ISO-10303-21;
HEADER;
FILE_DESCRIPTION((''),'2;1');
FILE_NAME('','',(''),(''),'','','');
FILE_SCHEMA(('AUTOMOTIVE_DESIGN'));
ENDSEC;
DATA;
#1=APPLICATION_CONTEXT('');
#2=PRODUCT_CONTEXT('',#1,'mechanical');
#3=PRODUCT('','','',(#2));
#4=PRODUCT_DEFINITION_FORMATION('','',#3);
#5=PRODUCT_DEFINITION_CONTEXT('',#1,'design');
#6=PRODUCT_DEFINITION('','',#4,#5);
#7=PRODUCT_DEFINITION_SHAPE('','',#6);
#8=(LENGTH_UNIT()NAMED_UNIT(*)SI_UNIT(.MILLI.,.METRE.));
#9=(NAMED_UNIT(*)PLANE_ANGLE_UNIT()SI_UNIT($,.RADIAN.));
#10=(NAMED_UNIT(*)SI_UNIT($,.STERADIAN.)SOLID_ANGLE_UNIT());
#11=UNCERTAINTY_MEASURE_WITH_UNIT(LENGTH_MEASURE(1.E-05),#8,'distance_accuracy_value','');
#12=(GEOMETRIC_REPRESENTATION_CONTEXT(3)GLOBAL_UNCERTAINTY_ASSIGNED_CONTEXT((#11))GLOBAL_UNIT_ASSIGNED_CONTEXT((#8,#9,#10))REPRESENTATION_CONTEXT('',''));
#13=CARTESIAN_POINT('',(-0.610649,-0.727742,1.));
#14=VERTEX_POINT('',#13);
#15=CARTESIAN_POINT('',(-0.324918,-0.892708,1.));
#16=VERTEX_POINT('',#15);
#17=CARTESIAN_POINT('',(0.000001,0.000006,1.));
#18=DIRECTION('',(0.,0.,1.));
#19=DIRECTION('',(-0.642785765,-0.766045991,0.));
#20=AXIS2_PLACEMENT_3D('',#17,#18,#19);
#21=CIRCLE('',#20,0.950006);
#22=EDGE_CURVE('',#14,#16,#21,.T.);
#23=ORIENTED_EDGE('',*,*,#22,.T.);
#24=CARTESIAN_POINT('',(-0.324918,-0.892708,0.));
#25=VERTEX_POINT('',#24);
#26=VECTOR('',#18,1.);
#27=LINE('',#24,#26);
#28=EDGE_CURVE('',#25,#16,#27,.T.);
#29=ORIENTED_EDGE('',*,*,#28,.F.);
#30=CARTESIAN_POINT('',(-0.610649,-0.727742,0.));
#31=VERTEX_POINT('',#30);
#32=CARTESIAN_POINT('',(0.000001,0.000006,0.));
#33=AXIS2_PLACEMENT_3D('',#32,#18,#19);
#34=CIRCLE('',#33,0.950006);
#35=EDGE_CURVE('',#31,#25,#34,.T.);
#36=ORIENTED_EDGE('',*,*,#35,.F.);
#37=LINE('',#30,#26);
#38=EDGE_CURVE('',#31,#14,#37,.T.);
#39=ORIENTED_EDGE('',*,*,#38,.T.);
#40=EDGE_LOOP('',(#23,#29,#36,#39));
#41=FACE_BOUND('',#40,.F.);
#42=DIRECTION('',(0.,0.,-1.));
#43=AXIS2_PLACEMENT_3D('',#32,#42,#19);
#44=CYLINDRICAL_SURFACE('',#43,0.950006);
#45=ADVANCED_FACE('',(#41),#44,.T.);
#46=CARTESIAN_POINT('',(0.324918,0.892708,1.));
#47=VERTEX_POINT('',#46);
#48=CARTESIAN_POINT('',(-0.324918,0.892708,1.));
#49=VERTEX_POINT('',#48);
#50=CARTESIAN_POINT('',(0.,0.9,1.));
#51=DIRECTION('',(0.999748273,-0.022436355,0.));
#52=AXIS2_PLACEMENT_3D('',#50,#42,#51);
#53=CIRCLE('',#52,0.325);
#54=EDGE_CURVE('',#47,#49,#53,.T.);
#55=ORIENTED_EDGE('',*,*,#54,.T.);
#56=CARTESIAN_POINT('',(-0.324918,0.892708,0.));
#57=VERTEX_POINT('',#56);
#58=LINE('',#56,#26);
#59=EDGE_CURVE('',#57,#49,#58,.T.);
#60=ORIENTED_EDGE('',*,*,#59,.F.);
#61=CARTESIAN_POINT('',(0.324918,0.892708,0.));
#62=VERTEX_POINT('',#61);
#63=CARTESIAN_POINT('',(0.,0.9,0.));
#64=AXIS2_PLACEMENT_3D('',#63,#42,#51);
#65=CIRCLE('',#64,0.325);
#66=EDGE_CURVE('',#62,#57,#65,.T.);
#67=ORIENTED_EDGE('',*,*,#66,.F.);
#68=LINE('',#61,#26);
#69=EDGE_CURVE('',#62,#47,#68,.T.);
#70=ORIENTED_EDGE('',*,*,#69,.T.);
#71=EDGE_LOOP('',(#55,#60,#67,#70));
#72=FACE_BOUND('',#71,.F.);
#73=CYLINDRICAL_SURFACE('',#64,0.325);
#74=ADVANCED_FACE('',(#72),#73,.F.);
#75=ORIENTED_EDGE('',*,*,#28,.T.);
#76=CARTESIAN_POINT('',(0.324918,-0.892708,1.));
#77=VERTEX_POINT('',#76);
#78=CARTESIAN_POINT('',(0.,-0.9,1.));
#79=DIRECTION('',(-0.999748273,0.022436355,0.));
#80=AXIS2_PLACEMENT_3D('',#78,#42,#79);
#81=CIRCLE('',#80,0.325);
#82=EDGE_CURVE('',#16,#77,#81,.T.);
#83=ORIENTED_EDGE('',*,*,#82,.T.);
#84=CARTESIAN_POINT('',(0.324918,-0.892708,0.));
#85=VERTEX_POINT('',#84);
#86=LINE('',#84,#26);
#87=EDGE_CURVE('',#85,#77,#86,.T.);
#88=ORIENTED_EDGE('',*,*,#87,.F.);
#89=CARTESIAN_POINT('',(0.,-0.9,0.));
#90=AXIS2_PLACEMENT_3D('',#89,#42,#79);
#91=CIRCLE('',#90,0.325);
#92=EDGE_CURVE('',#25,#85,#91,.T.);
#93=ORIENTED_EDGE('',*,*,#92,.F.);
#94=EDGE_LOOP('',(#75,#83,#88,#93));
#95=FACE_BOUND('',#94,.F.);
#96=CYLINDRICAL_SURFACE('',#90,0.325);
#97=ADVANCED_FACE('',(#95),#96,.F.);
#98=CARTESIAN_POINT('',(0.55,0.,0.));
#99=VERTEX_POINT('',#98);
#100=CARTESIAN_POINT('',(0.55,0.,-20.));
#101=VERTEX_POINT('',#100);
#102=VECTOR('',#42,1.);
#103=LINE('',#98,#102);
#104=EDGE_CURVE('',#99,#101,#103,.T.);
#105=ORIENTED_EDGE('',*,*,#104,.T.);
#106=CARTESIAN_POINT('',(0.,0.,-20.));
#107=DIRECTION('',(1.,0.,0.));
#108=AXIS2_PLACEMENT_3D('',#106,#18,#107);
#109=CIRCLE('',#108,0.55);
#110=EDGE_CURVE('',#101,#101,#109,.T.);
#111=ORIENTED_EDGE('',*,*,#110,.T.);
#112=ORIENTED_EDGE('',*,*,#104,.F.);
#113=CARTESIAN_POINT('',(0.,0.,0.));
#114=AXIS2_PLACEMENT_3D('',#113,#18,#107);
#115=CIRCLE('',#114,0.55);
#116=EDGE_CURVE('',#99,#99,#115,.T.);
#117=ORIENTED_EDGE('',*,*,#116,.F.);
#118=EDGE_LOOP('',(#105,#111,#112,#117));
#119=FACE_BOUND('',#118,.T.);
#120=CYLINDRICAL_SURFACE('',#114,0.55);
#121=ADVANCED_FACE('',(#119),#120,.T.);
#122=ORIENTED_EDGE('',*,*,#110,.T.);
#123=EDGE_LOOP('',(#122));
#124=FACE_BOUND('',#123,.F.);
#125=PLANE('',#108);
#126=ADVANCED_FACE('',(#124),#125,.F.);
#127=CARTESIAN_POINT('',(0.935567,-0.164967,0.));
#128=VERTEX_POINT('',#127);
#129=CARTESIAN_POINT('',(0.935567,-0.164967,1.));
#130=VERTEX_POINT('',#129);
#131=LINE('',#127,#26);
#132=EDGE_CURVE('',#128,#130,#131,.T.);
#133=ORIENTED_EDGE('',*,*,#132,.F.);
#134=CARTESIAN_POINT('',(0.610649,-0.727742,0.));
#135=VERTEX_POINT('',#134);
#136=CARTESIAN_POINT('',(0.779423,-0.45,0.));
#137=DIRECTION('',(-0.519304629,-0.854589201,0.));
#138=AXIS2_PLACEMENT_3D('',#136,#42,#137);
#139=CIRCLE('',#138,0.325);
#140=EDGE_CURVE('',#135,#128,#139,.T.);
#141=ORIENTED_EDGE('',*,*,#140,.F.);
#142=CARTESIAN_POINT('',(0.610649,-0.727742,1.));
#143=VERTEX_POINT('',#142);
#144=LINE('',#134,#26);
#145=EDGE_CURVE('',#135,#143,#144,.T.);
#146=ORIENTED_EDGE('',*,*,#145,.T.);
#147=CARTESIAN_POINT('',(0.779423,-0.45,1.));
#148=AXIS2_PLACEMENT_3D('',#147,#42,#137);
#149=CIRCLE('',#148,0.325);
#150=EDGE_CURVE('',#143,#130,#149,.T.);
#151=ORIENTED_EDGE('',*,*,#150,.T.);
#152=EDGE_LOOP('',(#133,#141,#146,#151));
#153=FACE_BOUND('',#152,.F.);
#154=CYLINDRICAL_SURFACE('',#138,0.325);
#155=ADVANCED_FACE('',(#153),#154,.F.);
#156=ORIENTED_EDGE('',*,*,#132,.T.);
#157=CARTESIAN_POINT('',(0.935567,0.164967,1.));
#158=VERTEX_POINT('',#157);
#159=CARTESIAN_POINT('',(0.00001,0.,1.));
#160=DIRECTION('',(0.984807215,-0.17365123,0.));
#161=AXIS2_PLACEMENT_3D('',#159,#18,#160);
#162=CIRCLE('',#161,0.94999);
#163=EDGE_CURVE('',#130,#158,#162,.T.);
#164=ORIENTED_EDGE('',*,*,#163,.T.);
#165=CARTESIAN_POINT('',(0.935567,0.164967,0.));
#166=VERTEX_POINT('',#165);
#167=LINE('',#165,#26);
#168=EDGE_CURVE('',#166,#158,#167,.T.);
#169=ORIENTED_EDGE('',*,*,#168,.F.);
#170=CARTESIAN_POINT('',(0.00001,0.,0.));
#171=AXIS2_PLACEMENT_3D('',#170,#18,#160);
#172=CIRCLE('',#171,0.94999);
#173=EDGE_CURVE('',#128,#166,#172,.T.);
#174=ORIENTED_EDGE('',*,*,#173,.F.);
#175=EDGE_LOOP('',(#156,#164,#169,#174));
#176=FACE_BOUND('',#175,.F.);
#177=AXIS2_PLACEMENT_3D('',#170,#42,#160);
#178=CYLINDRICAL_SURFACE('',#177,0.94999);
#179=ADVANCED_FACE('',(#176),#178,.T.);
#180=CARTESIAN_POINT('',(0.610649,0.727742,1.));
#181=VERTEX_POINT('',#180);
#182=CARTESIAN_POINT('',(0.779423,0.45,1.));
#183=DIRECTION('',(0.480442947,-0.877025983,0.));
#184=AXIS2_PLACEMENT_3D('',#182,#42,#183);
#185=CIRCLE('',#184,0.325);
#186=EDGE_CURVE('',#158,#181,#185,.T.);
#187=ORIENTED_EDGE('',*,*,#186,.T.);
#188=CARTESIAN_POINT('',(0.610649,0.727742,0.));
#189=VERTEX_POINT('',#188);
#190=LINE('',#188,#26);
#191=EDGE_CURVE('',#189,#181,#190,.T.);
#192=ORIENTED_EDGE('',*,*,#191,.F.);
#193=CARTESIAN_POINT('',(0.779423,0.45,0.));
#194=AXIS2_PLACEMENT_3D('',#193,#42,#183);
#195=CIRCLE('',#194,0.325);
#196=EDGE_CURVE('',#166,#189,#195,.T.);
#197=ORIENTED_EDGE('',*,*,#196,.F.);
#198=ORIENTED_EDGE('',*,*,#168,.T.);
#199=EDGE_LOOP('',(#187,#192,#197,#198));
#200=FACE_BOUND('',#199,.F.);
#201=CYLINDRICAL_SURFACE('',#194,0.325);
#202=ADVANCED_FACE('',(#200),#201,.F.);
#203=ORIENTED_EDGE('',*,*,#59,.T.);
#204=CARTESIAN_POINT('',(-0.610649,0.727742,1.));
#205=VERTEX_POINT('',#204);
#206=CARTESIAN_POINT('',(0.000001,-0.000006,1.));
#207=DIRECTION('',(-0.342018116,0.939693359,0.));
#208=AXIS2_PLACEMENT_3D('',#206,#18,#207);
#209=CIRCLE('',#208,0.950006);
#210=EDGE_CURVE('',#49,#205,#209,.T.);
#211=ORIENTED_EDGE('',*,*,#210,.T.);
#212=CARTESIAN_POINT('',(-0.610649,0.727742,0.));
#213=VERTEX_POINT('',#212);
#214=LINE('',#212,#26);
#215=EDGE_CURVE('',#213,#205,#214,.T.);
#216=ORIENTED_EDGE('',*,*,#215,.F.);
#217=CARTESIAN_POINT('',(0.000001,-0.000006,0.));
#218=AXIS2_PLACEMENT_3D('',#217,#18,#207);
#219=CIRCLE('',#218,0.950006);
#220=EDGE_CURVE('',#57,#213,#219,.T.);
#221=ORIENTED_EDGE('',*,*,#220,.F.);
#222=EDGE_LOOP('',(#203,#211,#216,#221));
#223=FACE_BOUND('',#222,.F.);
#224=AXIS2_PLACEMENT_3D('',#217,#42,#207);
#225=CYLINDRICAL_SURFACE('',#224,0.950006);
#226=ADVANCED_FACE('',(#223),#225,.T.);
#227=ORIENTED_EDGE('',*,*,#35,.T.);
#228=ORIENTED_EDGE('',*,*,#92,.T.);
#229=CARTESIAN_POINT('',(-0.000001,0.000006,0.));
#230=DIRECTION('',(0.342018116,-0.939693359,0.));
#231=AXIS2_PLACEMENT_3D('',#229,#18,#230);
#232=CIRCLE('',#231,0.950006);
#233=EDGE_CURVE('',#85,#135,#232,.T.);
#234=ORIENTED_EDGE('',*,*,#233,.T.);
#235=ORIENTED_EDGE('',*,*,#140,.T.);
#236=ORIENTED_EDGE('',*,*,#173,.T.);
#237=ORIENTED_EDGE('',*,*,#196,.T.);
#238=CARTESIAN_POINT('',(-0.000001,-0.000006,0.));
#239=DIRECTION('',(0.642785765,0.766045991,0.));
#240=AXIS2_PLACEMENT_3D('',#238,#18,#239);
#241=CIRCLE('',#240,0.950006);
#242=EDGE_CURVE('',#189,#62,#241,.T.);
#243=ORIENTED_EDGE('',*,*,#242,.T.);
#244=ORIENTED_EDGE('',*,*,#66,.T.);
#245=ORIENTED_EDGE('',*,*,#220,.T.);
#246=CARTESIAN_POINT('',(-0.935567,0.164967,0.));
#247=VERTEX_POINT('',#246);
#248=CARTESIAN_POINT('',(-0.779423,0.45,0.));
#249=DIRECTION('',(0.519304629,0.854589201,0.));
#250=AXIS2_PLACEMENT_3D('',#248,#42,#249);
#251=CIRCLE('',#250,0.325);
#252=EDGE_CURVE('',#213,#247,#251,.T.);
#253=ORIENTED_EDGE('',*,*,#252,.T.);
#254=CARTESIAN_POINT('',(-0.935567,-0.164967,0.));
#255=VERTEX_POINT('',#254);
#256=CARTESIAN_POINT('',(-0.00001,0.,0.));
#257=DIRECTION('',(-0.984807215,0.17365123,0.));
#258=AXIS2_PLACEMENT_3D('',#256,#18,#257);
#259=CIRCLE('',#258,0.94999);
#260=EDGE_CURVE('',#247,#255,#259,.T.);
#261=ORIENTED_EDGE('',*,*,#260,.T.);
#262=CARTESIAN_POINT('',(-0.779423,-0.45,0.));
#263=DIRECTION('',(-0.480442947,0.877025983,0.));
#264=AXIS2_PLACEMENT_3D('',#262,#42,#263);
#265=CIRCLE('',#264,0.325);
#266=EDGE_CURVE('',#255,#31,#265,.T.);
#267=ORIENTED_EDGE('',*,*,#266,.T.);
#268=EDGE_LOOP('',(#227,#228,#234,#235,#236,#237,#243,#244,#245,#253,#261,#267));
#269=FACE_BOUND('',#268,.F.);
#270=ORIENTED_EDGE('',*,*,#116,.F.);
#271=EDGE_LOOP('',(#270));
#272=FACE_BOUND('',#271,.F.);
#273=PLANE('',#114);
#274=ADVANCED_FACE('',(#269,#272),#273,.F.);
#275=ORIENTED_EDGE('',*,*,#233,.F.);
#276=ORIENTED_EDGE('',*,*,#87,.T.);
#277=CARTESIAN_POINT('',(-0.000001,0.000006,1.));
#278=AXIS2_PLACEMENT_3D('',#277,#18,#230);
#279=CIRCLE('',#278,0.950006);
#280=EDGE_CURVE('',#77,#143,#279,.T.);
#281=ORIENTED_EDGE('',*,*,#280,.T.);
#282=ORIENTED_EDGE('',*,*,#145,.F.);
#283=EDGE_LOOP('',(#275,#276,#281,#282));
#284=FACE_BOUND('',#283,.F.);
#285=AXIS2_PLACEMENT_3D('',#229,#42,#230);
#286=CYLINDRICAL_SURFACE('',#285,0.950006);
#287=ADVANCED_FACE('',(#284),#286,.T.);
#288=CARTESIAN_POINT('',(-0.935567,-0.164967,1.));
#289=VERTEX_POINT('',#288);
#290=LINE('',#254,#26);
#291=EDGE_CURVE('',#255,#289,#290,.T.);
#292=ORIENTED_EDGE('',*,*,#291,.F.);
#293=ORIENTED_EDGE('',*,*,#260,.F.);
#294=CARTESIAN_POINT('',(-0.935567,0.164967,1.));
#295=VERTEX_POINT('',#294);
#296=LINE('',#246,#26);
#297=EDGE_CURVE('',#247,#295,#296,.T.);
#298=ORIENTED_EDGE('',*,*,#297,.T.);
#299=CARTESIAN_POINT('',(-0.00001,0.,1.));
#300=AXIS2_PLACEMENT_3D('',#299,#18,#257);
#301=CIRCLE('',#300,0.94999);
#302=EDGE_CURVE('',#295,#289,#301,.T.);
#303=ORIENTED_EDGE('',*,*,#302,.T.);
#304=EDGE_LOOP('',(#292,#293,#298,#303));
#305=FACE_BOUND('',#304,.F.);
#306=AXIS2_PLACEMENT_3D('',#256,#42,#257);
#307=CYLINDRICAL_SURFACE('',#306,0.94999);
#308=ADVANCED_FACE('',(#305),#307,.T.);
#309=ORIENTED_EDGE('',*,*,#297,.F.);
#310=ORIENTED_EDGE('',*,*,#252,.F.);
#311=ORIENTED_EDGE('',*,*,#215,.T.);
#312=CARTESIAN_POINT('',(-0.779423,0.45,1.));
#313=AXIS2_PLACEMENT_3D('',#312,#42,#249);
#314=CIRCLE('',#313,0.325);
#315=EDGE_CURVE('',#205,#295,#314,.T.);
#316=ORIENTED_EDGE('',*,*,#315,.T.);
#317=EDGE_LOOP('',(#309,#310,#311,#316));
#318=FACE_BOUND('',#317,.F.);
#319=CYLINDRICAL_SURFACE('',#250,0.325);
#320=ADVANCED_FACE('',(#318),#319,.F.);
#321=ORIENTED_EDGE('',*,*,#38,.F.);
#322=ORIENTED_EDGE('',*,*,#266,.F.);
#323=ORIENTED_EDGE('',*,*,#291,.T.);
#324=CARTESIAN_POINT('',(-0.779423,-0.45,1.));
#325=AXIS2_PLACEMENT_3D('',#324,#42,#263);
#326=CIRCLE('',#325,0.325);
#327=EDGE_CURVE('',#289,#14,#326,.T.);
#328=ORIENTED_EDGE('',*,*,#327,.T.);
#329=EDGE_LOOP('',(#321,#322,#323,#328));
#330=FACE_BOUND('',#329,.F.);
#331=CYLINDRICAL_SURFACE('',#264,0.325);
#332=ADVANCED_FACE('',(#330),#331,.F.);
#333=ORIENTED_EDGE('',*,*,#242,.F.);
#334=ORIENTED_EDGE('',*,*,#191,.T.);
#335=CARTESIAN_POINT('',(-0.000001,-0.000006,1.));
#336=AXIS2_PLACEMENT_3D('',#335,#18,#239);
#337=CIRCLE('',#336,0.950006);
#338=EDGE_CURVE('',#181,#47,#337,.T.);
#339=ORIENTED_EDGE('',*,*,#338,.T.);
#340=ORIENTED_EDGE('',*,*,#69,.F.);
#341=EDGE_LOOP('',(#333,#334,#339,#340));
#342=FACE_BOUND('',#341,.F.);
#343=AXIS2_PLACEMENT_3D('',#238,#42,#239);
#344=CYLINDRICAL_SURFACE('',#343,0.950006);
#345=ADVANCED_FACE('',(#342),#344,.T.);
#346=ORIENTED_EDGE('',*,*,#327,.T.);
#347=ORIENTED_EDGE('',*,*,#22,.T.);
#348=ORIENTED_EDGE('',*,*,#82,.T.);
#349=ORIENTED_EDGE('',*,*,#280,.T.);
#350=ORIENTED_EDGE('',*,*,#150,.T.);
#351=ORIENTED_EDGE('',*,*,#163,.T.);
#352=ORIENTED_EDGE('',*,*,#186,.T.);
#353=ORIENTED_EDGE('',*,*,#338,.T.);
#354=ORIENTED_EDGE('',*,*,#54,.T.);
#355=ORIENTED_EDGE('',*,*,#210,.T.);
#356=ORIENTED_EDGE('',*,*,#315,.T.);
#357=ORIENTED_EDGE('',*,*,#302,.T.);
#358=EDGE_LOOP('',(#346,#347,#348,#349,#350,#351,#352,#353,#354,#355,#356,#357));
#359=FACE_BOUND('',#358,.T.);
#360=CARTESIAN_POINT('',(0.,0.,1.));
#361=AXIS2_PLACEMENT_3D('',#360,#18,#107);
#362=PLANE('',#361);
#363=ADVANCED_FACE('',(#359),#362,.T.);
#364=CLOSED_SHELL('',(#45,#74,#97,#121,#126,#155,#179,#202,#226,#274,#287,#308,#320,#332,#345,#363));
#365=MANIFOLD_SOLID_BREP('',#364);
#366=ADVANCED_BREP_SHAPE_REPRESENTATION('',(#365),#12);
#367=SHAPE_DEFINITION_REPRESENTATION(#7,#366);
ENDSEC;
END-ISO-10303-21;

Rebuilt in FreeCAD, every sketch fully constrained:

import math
import FreeCAD as App
import Part
import Sketcher
from FreeCAD import Vector

doc = App.newDocument("Part")
body = doc.addObject("PartDesign::Body", "Body")

# Sketch on XY plane
sketch1 = doc.addObject("Sketcher::SketchObject", "Sketch")
body.addObject(sketch1)
sketch1.AttachmentSupport = (doc.XY_Plane, [""])
sketch1.MapMode = "FlatFace"
sketch1.addGeometry(Part.ArcOfCircle(Part.Circle(Vector(0, 0.9, 0), Vector(0, 0, 1), 0.32), math.radians(-179), math.radians(-1)), False)
sketch1.addGeometry(Part.ArcOfCircle(Part.Circle(Vector(0, 0, 0), Vector(0, 0, 1), 0.95), math.radians(110), math.radians(130)), False)
sketch1.addGeometry(Part.ArcOfCircle(Part.Circle(Vector(-0.78, 0.45, 0), Vector(0, 0, 1), 0.33), math.radians(-119), math.radians(59)), False)
sketch1.addGeometry(Part.ArcOfCircle(Part.Circle(Vector(0, 0, 0), Vector(0, 0, 1), 0.95), math.radians(170), math.radians(190)), False)
sketch1.addGeometry(Part.ArcOfCircle(Part.Circle(Vector(-0.78, -0.45, 0), Vector(0, 0, 1), 0.33), math.radians(-59), math.radians(119)), False)
sketch1.addGeometry(Part.ArcOfCircle(Part.Circle(Vector(0, 0, 0), Vector(0, 0, 1), 0.95), math.radians(-130), math.radians(-110)), False)
sketch1.addGeometry(Part.ArcOfCircle(Part.Circle(Vector(0, -0.9, 0), Vector(0, 0, 1), 0.32), math.radians(1), math.radians(179)), False)
sketch1.addGeometry(Part.ArcOfCircle(Part.Circle(Vector(0, 0, 0), Vector(0, 0, 1), 0.95), math.radians(-70), math.radians(-50)), False)
sketch1.addGeometry(Part.ArcOfCircle(Part.Circle(Vector(0.78, -0.45, 0), Vector(0, 0, 1), 0.33), math.radians(61), math.radians(239)), False)
sketch1.addGeometry(Part.ArcOfCircle(Part.Circle(Vector(0, 0, 0), Vector(0, 0, 1), 0.95), math.radians(-10), math.radians(10)), False)
sketch1.addGeometry(Part.ArcOfCircle(Part.Circle(Vector(0.78, 0.45, 0), Vector(0, 0, 1), 0.33), math.radians(121), math.radians(299)), False)
sketch1.addGeometry(Part.ArcOfCircle(Part.Circle(Vector(0, 0, 0), Vector(0, 0, 1), 0.95), math.radians(50), math.radians(70)), False)
sketch1.addConstraint(Sketcher.Constraint("Coincident", 0, 1, 1, 1))
sketch1.addConstraint(Sketcher.Constraint("Coincident", 1, 2, 2, 2))
sketch1.addConstraint(Sketcher.Constraint("Coincident", 2, 1, 3, 1))
sketch1.addConstraint(Sketcher.Constraint("Coincident", 3, 2, 4, 2))
sketch1.addConstraint(Sketcher.Constraint("Coincident", 4, 1, 5, 1))
sketch1.addConstraint(Sketcher.Constraint("Coincident", 5, 2, 6, 2))
sketch1.addConstraint(Sketcher.Constraint("Coincident", 6, 1, 7, 1))
sketch1.addConstraint(Sketcher.Constraint("Coincident", 7, 2, 8, 2))
sketch1.addConstraint(Sketcher.Constraint("Coincident", 8, 1, 9, 1))
sketch1.addConstraint(Sketcher.Constraint("Coincident", 9, 2, 10, 2))
sketch1.addConstraint(Sketcher.Constraint("Coincident", 10, 1, 11, 1))
sketch1.addConstraint(Sketcher.Constraint("Coincident", 11, 2, 0, 2))
sketch1.addConstraint(Sketcher.Constraint("Coincident", 1, 3, -1, 1))
sketch1.addConstraint(Sketcher.Constraint("Coincident", 3, 3, -1, 1))
sketch1.addConstraint(Sketcher.Constraint("Coincident", 5, 3, -1, 1))
sketch1.addConstraint(Sketcher.Constraint("Coincident", 7, 3, -1, 1))
sketch1.addConstraint(Sketcher.Constraint("Coincident", 9, 3, -1, 1))
sketch1.addConstraint(Sketcher.Constraint("Coincident", 11, 3, -1, 1))
sketch1.addConstraint(Sketcher.Constraint("Equal", 0, 2))
sketch1.addConstraint(Sketcher.Constraint("Equal", 2, 4))
sketch1.addConstraint(Sketcher.Constraint("Equal", 1, 5))
sketch1.addConstraint(Sketcher.Constraint("Equal", 4, 6))
sketch1.addConstraint(Sketcher.Constraint("Equal", 5, 7))
sketch1.addConstraint(Sketcher.Constraint("Equal", 6, 8))
sketch1.addConstraint(Sketcher.Constraint("Equal", 3, 9))
sketch1.addConstraint(Sketcher.Constraint("Equal", 8, 10))
sketch1.addConstraint(Sketcher.Constraint("Equal", 7, 11))
sketch1.addConstraint(Sketcher.Constraint("Symmetric", 0, 3, 6, 3, -1, 1))
sketch1.addConstraint(Sketcher.Constraint("Symmetric", 2, 3, 8, 3, -1, 1))
sketch1.addConstraint(Sketcher.Constraint("Symmetric", 4, 3, 10, 3, -1, 1))
sketch1.addConstraint(Sketcher.Constraint("Symmetric", 4, 3, 8, 3, -2))
sketch1.addConstraint(Sketcher.Constraint("PointOnObject", 0, 3, -2))
sketch1.addConstraint(Sketcher.Constraint("Radius", 0, 0.325))
sketch1.addConstraint(Sketcher.Constraint("DistanceY", -1, 1, 0, 3, 0.9))
sketch1.addConstraint(Sketcher.Constraint("DistanceY", 4, 3, 2, 3, 0.900001))
sketch1.addConstraint(Sketcher.Constraint("Radius", 3, 0.94999))
sketch1.addConstraint(Sketcher.Constraint("Radius", 1, 0.950006))
sketch1.addConstraint(Sketcher.Constraint("DistanceX", 1, 2, -1, 1, 0.610649))
pad1 = doc.addObject("PartDesign::Pad", "Pad")
body.addObject(pad1)
pad1.Profile = sketch1
pad1.Length = 1

# Sketch on XY plane
sketch2 = doc.addObject("Sketcher::SketchObject", "Sketch001")
body.addObject(sketch2)
sketch2.AttachmentSupport = (doc.XY_Plane, [""])
sketch2.MapMode = "FlatFace"
sketch2.addGeometry(Part.Circle(Vector(0, 0, 0), Vector(0, 0, 1), 0.6), False)
sketch2.addConstraint(Sketcher.Constraint("Coincident", 0, 3, -1, 1))
sketch2.addConstraint(Sketcher.Constraint("Diameter", 0, 1.1))
pad2 = doc.addObject("PartDesign::Pad", "Pad001")
body.addObject(pad2)
pad2.Profile = sketch2
pad2.Length = 20
pad2.Reversed = True

doc.recompute()
